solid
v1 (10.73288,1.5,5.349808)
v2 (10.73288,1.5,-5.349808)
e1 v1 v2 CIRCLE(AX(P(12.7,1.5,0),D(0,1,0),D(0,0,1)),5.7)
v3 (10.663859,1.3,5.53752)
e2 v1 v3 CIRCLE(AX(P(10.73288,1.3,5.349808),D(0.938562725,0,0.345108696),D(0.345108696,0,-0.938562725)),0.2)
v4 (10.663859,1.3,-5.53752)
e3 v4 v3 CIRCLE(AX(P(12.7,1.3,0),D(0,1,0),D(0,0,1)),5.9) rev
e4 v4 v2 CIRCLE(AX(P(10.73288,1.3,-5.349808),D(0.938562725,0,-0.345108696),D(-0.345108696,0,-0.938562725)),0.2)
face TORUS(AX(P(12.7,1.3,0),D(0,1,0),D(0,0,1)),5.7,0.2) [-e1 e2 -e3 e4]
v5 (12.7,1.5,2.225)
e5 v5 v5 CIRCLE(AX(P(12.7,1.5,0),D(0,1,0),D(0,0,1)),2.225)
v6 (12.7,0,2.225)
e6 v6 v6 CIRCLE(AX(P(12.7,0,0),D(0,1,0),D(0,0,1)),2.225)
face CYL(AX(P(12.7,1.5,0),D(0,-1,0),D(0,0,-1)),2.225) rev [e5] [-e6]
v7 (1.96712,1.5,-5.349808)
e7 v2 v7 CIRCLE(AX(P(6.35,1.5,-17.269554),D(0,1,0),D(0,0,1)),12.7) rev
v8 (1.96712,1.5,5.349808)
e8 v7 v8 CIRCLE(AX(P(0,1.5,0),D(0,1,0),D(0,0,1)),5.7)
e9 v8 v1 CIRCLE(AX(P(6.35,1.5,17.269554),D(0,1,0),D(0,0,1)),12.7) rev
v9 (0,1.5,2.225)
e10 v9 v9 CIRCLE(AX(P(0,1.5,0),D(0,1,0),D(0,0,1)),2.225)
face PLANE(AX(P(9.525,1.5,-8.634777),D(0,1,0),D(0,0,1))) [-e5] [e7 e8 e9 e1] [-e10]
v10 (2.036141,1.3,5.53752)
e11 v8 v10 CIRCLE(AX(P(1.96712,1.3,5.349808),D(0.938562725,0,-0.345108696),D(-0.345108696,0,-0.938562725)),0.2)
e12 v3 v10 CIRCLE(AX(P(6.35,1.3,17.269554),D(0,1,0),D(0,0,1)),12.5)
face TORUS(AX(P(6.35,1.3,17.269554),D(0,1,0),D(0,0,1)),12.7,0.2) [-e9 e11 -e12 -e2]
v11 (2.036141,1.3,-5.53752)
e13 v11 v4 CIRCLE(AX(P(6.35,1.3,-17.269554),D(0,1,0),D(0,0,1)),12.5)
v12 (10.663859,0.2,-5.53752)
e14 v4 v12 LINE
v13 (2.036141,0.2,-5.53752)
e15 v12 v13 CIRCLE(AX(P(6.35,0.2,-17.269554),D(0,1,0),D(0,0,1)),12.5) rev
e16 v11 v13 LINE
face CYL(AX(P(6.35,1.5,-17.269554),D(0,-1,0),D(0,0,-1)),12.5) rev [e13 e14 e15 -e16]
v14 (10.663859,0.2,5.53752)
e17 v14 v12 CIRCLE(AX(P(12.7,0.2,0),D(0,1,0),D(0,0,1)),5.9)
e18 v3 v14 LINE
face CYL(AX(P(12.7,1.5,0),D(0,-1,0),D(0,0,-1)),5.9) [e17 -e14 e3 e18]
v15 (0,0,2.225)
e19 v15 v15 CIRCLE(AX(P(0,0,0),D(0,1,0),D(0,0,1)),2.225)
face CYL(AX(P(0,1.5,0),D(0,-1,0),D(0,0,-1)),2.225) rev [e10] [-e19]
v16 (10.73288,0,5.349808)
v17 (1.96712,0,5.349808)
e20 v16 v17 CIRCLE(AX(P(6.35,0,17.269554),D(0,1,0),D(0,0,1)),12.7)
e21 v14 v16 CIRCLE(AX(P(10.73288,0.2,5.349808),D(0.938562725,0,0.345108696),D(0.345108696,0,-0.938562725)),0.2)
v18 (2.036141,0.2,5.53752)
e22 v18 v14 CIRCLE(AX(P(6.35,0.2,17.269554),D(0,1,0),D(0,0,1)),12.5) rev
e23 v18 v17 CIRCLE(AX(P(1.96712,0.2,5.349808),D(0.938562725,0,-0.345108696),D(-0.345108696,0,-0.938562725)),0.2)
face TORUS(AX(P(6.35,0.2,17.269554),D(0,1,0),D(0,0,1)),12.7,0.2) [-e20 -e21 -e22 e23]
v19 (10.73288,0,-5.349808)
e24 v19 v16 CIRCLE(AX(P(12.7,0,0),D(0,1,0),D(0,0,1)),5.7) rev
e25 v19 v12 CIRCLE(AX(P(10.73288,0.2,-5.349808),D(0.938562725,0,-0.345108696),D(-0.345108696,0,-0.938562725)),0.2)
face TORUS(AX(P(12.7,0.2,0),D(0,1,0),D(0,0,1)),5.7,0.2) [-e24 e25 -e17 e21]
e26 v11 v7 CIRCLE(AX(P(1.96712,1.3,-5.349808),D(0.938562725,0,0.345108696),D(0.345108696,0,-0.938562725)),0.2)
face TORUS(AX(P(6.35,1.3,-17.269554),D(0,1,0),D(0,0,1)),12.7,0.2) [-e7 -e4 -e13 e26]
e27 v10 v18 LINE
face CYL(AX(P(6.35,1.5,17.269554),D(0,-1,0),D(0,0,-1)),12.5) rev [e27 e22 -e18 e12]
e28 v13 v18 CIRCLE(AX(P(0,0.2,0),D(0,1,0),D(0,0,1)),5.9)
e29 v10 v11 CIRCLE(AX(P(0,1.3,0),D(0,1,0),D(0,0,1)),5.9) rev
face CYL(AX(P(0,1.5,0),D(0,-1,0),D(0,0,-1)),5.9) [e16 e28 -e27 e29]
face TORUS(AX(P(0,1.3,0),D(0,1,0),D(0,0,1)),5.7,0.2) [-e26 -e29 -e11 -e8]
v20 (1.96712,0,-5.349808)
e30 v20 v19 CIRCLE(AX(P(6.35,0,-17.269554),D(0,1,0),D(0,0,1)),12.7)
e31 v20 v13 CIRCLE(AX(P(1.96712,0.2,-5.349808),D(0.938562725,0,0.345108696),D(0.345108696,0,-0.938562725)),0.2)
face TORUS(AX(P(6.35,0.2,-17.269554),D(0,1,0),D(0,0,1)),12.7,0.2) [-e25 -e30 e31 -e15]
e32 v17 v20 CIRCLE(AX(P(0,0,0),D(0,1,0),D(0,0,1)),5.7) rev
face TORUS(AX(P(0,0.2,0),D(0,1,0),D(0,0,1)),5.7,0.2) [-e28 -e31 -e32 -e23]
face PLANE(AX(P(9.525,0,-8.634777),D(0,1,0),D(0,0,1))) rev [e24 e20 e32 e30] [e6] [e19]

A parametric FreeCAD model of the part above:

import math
import FreeCAD as App
import Part
import Sketcher


def edges_at(feature, points):
    """Names of the edges that pass closest to the given points."""
    edges = feature.Shape.Edges
    near = lambda p: min(range(len(edges)), key=lambda i: edges[i].distToShape(Part.Vertex(*p))[0])
    return sorted({f"Edge{near(p) + 1}" for p in points})

doc = App.newDocument("Part")
body = doc.addObject("PartDesign::Body", "Body")

sketch1 = doc.addObject("Sketcher::SketchObject", "Sketch")
body.addObject(sketch1)
sketch1.AttachmentSupport = (doc.XZ_Plane, [""])
sketch1.MapMode = "FlatFace"
sketch1.addGeometry([
    Part.ArcOfCircle(Part.Circle(App.Vector(0, 0, 0), App.Vector(0, 0, 1), 5.9), math.radians(70), math.radians(290)),
    Part.ArcOfCircle(Part.Circle(App.Vector(6.3, 17.3, 0), App.Vector(0, 0, 1), 12.5), math.radians(-110), math.radians(-70)),
    Part.ArcOfCircle(Part.Circle(App.Vector(12.7, 0, 0), App.Vector(0, 0, 1), 5.9), math.radians(-110), math.radians(110)),
    Part.ArcOfCircle(Part.Circle(App.Vector(6.3, -17.3, 0), App.Vector(0, 0, 1), 12.5), math.radians(70), math.radians(110)),
    Part.Circle(App.Vector(0, 0, 0), App.Vector(0, 0, 1), 2.2),
    Part.Circle(App.Vector(12.7, 0, 0), App.Vector(0, 0, 1), 2.2),
], False)
sketch1.addConstraint([
    Sketcher.Constraint("Tangent", 0, 1, 1, 1),
    Sketcher.Constraint("Tangent", 1, 2, 2, 2),
    Sketcher.Constraint("Tangent", 2, 1, 3, 1),
    Sketcher.Constraint("Tangent", 3, 2, 0, 2),
    Sketcher.Constraint("Coincident", 0, 3, -1, 1),
    Sketcher.Constraint("Coincident", 4, 3, -1, 1),
    Sketcher.Constraint("Coincident", 5, 3, 2, 3),
    Sketcher.Constraint("Equal", 0, 2),
    Sketcher.Constraint("Equal", 1, 3),
    Sketcher.Constraint("Equal", 4, 5),
    Sketcher.Constraint("PointOnObject", 2, 3, -1),
    Sketcher.Constraint("Radius", 0, 5.9),
    Sketcher.Constraint("Radius", 1, 12.5),
    Sketcher.Constraint("Diameter", 4, 4.45),
    Sketcher.Constraint("DistanceX", -1, 1, 2, 3, 12.7),
])
pad1 = doc.addObject("PartDesign::Pad", "Pad")
body.addObject(pad1)
pad1.Profile = sketch1
pad1.Length = 1.5
pad1.Reversed = True
doc.recompute()

fillet = doc.addObject("PartDesign::Fillet", "Fillet")
body.addObject(fillet)
fillet.Base = (pad1, edges_at(pad1, [
    (6.35, 1.5, 4.77),
    (18.6, 1.5, 0),
    (6.35, 1.5, -4.77),
    (18.6, 0, 0),
    (6.35, 0, 4.77),
    (-5.9, 0, 0),
    (6.35, 0, -4.77),
    (-5.9, 1.5, 0),
]))
fillet.Radius = 0.2

doc.recompute()
